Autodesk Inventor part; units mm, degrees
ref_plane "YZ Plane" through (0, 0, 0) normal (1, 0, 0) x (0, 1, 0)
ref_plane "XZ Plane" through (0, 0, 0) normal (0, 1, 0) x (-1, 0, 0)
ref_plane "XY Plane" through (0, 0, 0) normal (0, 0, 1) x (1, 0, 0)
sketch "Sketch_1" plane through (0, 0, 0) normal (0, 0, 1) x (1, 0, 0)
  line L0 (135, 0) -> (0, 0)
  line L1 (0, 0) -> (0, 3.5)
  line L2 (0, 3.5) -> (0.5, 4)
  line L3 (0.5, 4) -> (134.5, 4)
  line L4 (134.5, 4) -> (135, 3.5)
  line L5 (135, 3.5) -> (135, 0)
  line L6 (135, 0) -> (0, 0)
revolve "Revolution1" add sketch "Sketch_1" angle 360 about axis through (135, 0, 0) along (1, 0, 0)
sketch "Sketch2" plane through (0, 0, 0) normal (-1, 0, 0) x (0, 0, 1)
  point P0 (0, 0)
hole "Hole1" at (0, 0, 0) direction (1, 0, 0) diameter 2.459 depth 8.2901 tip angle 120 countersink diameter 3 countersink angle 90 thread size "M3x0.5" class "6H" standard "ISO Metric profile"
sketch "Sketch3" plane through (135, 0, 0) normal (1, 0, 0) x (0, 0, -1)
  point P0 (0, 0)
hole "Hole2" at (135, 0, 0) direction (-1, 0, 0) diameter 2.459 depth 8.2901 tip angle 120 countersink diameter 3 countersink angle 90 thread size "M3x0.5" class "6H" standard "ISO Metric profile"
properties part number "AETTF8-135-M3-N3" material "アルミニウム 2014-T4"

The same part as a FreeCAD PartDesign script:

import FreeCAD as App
import Part
import Sketcher

V = App.Vector

doc = App.newDocument("Part")
body = doc.addObject("PartDesign::Body", "Body")

# Sketch on XY plane
sketch1 = doc.addObject("Sketcher::SketchObject", "Sketch")
body.addObject(sketch1)
sketch1.AttachmentSupport = (doc.XY_Plane, [""])
sketch1.MapMode = "FlatFace"
sketch1.addGeometry([
    Part.LineSegment(V(0, 0, 0), V(135, 0, 0)),  # 0
    Part.LineSegment(V(135, 0, 0), V(135, 3.5, 0)),  # 1
    Part.LineSegment(V(135, 3.5, 0), V(134.5, 4, 0)),  # 2
    Part.LineSegment(V(134.5, 4, 0), V(0.5, 4, 0)),  # 3
    Part.LineSegment(V(0.5, 4, 0), V(0, 3.5, 0)),  # 4
    Part.LineSegment(V(0, 3.5, 0), V(0, 0, 0)),  # 5
], False)
sketch1.addConstraint([
    Sketcher.Constraint("Coincident", 0, 2, 1, 1),
    Sketcher.Constraint("Coincident", 1, 2, 2, 1),
    Sketcher.Constraint("Coincident", 2, 2, 3, 1),
    Sketcher.Constraint("Coincident", 3, 2, 4, 1),
    Sketcher.Constraint("Coincident", 4, 2, 5, 1),
    Sketcher.Constraint("Coincident", 5, 2, 0, 1),
    Sketcher.Constraint("Horizontal", 0),
    Sketcher.Constraint("Vertical", 1),
    Sketcher.Constraint("Horizontal", 3),
    Sketcher.Constraint("Vertical", 5),
    Sketcher.Constraint("Coincident", 5, 2, -1, 1),
    Sketcher.Constraint("Perpendicular", 2, 4),
    Sketcher.Constraint("Horizontal", 1, 2, 4, 2),
    Sketcher.Constraint("Equal", 2, 4),
    Sketcher.Constraint("DistanceX", 0, 1, 0, 2, 135.0),
    Sketcher.Constraint("DistanceX", 3, 2, 3, 1, 134.0),
    Sketcher.Constraint("DistanceY", 1, 1, 1, 2, 3.5),
])
revolution = doc.addObject("PartDesign::Revolution", "Revolution")
body.addObject(revolution)
revolution.Profile = sketch1
revolution.ReferenceAxis = (sketch1, ["H_Axis"])
revolution.Angle = 360

# Sketch on YZ plane
sketch2 = doc.addObject("Sketcher::SketchObject", "Sketch001")
body.addObject(sketch2)
sketch2.AttachmentSupport = (doc.YZ_Plane, [""])
sketch2.MapMode = "FlatFace"
sketch2.addGeometry(Part.Circle(V(0, 0, 0), V(0, 0, 1), 1.2295), False)
sketch2.addConstraint([
    Sketcher.Constraint("Coincident", 0, 3, -1, 1),
    Sketcher.Constraint("Diameter", 0, 2.459),
])
doc.recompute()
hole = doc.addObject("PartDesign::Hole", "Hole")
body.addObject(hole)
hole.Profile = sketch2
hole.ThreadType = "None"
hole.Diameter = 2.459
hole.DepthType = "Dimension"
hole.Depth = 8.2901
hole.DrillPoint = "Angled"
hole.DrillPointAngle = 120
hole.HoleCutType = "Countersink"
hole.HoleCutDiameter = 3
hole.HoleCutCountersinkAngle = 90
hole.Reversed = True

# Sketch on YZ plane
sketch3 = doc.addObject("Sketcher::SketchObject", "Sketch002")
body.addObject(sketch3)
sketch3.AttachmentSupport = (doc.YZ_Plane, [""])
sketch3.MapMode = "FlatFace"
sketch3.AttachmentOffset = App.Placement(V(0, 0, 135), App.Rotation())
sketch3.addGeometry(Part.Circle(V(0, 0, 0), V(0, 0, 1), 1.2295), False)
sketch3.addConstraint([
    Sketcher.Constraint("Coincident", 0, 3, -1, 1),
    Sketcher.Constraint("Diameter", 0, 2.459),
])
doc.recompute()
hole2 = doc.addObject("PartDesign::Hole", "Hole001")
body.addObject(hole2)
hole2.Profile = sketch3
hole2.ThreadType = "None"
hole2.Diameter = 2.459
hole2.DepthType = "Dimension"
hole2.Depth = 8.2901
hole2.DrillPoint = "Angled"
hole2.DrillPointAngle = 120
hole2.HoleCutType = "Countersink"
hole2.HoleCutDiameter = 3
hole2.HoleCutCountersinkAngle = 90

doc.recompute()
